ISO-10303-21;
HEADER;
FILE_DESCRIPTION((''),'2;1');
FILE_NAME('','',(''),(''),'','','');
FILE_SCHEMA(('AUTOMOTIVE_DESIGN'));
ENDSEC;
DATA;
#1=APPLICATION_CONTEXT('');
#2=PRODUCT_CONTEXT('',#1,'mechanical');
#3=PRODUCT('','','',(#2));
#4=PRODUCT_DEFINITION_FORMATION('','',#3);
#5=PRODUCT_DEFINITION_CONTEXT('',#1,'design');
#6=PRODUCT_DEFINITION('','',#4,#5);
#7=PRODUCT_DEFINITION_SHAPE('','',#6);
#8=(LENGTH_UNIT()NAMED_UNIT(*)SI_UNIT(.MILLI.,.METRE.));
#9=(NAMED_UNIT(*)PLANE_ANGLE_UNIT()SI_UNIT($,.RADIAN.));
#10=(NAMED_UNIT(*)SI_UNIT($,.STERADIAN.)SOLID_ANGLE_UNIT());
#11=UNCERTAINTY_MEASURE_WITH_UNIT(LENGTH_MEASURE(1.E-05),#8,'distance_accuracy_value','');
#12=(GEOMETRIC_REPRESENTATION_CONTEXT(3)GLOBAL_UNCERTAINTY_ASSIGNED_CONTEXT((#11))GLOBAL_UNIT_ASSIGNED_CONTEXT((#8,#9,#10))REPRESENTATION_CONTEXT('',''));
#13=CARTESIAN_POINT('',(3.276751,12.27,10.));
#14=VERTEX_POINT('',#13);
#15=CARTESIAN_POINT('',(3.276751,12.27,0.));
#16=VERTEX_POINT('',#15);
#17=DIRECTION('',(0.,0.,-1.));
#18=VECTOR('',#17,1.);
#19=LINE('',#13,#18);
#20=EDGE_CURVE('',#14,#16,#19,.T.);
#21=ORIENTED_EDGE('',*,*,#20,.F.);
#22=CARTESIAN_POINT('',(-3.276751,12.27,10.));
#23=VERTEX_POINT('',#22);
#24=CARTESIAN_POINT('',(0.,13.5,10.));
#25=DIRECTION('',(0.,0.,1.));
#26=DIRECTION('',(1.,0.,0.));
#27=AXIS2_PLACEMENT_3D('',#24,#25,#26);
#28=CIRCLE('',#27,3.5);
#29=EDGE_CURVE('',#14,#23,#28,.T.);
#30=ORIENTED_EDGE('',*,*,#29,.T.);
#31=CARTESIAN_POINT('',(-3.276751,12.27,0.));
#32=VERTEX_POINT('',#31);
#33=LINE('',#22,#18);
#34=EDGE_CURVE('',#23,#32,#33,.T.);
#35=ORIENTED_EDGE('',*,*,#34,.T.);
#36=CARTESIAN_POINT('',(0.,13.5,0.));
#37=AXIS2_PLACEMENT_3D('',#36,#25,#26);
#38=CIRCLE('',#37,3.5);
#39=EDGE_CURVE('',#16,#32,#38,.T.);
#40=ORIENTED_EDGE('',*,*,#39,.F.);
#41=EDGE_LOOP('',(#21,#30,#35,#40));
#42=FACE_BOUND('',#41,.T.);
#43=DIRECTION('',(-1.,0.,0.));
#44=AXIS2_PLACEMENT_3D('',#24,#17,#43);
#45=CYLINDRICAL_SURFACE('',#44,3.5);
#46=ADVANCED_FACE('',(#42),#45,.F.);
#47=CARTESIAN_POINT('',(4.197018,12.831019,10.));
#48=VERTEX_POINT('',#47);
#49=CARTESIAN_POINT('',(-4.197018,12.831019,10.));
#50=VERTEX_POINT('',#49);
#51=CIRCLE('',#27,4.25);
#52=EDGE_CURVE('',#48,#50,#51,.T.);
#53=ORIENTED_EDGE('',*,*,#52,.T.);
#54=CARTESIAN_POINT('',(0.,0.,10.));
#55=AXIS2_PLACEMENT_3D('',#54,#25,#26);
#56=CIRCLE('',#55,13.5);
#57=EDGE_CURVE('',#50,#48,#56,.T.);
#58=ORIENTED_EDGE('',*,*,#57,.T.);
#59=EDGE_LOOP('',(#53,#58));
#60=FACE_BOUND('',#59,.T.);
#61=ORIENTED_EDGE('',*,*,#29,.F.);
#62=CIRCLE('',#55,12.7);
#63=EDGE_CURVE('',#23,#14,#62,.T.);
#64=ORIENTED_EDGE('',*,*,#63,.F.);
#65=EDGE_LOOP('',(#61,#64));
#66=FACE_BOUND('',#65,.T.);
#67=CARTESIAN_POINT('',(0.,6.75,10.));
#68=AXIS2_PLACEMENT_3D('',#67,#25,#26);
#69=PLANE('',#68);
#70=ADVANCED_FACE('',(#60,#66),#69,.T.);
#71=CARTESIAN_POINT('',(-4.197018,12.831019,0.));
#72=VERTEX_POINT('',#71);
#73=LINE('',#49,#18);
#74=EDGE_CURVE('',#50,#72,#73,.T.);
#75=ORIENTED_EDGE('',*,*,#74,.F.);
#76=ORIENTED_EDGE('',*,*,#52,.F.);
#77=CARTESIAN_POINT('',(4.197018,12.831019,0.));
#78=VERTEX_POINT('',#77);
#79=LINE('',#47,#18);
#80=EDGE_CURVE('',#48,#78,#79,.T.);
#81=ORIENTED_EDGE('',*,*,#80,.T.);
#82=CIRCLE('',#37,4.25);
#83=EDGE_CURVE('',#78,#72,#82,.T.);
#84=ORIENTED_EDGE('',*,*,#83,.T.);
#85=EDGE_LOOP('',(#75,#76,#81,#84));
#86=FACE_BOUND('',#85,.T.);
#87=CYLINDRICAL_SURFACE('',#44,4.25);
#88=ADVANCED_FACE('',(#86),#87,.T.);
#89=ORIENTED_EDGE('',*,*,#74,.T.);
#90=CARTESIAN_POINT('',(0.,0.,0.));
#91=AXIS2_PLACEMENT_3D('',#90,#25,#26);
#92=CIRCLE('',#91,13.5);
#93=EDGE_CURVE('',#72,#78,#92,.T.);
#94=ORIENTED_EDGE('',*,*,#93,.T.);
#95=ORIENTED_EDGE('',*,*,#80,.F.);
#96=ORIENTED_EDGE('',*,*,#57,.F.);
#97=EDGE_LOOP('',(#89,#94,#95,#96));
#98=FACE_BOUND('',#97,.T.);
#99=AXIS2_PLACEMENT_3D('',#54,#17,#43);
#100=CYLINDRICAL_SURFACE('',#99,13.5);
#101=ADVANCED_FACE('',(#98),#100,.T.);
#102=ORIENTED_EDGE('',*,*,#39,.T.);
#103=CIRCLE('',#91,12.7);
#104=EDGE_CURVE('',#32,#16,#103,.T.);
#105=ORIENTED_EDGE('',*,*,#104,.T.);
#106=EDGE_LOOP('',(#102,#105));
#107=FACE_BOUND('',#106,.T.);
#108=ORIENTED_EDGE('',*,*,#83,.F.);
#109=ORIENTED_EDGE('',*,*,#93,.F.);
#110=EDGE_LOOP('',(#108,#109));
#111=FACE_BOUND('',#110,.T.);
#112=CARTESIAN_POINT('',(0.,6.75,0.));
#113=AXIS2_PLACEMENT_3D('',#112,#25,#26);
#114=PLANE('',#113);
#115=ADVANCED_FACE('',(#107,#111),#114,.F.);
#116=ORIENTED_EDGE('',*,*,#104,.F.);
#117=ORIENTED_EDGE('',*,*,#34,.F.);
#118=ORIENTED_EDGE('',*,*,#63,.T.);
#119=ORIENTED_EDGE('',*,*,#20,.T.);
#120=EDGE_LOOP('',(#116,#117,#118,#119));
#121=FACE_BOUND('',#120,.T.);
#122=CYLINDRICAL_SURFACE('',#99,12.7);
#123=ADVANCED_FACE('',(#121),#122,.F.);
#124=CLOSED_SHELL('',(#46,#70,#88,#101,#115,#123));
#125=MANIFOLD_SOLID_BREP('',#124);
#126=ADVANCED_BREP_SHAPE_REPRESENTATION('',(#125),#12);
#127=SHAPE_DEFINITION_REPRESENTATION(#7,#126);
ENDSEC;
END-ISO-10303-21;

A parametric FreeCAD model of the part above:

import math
import FreeCAD as App
import Part
import Sketcher

V = App.Vector
Q = App.Units.Quantity

doc = App.newDocument("Part")
params = doc.addObject("Spreadsheet::Sheet", "Params")
for row, (alias, value) in enumerate([
    ("sketch1_radius", "13.5 mm"),
    ("sketch1_radius2", "3.5 mm"),
    ("sketch1_radius3", "12.7 mm"),
    ("sketch1_radius4", "4.25 mm"),
    ("pad1_length", "10 mm"),
], start=1):
    params.set(f"A{row}", alias)
    params.set(f"B{row}", "=" + value)
    params.setAlias(f"B{row}", alias)

body = doc.addObject("PartDesign::Body", "Body")

# Sketch on XY plane
sketch1 = body.newObject("Sketcher::SketchObject", "Sketch")
sketch1.AttachmentSupport = (doc.getObject("XY_Plane"), [""])
sketch1.MapMode = "FlatFace"
sketch1.addGeometry([
    Part.ArcOfCircle(Part.Circle(V(0, 0, 0), V(0, 0, 1), 13.5), math.radians(108), math.radians(432)),
    Part.ArcOfCircle(Part.Circle(V(0, 13.5, 0), V(0, 0, 1), 4.2), math.radians(-9), math.radians(189)),
    Part.ArcOfCircle(Part.Circle(V(0, 13.5, 0), V(0, 0, 1), 3.5), math.radians(-21), math.radians(201)),
    Part.ArcOfCircle(Part.Circle(V(0, 0, 0), V(0, 0, 1), 12.7), math.radians(105), math.radians(435)),
], False)
sketch1.addConstraint([
    Sketcher.Constraint("Coincident", 0, 1, 1, 2),
    Sketcher.Constraint("Coincident", 1, 1, 0, 2),
    Sketcher.Constraint("Coincident", 2, 1, 3, 2),
    Sketcher.Constraint("Coincident", 3, 1, 2, 2),
    Sketcher.Constraint("Coincident", 0, 3, -1, 1),
    Sketcher.Constraint("Coincident", 3, 3, -1, 1),
    Sketcher.Constraint("Coincident", 2, 3, 1, 3),
    Sketcher.Constraint("PointOnObject", 1, 3, -2),
    Sketcher.Constraint("Radius", 0, Q("13.5 mm")),
    Sketcher.Constraint("Radius", 2, Q("3.5 mm")),
    Sketcher.Constraint("Radius", 3, Q("12.7 mm")),
    Sketcher.Constraint("Radius", 1, Q("4.25 mm")),
    Sketcher.Constraint("DistanceY", -1, 1, 1, 3, Q("13.5 mm")),
])
sketch1.setExpression("Constraints[8]", "Params.sketch1_radius")
sketch1.setExpression("Constraints[9]", "Params.sketch1_radius2")
sketch1.setExpression("Constraints[10]", "Params.sketch1_radius3")
sketch1.setExpression("Constraints[11]", "Params.sketch1_radius4")
pad1 = body.newObject("PartDesign::Pad", "Pad")
pad1.Profile = sketch1
pad1.setExpression("Length", "Params.pad1_length")

doc.recompute()
